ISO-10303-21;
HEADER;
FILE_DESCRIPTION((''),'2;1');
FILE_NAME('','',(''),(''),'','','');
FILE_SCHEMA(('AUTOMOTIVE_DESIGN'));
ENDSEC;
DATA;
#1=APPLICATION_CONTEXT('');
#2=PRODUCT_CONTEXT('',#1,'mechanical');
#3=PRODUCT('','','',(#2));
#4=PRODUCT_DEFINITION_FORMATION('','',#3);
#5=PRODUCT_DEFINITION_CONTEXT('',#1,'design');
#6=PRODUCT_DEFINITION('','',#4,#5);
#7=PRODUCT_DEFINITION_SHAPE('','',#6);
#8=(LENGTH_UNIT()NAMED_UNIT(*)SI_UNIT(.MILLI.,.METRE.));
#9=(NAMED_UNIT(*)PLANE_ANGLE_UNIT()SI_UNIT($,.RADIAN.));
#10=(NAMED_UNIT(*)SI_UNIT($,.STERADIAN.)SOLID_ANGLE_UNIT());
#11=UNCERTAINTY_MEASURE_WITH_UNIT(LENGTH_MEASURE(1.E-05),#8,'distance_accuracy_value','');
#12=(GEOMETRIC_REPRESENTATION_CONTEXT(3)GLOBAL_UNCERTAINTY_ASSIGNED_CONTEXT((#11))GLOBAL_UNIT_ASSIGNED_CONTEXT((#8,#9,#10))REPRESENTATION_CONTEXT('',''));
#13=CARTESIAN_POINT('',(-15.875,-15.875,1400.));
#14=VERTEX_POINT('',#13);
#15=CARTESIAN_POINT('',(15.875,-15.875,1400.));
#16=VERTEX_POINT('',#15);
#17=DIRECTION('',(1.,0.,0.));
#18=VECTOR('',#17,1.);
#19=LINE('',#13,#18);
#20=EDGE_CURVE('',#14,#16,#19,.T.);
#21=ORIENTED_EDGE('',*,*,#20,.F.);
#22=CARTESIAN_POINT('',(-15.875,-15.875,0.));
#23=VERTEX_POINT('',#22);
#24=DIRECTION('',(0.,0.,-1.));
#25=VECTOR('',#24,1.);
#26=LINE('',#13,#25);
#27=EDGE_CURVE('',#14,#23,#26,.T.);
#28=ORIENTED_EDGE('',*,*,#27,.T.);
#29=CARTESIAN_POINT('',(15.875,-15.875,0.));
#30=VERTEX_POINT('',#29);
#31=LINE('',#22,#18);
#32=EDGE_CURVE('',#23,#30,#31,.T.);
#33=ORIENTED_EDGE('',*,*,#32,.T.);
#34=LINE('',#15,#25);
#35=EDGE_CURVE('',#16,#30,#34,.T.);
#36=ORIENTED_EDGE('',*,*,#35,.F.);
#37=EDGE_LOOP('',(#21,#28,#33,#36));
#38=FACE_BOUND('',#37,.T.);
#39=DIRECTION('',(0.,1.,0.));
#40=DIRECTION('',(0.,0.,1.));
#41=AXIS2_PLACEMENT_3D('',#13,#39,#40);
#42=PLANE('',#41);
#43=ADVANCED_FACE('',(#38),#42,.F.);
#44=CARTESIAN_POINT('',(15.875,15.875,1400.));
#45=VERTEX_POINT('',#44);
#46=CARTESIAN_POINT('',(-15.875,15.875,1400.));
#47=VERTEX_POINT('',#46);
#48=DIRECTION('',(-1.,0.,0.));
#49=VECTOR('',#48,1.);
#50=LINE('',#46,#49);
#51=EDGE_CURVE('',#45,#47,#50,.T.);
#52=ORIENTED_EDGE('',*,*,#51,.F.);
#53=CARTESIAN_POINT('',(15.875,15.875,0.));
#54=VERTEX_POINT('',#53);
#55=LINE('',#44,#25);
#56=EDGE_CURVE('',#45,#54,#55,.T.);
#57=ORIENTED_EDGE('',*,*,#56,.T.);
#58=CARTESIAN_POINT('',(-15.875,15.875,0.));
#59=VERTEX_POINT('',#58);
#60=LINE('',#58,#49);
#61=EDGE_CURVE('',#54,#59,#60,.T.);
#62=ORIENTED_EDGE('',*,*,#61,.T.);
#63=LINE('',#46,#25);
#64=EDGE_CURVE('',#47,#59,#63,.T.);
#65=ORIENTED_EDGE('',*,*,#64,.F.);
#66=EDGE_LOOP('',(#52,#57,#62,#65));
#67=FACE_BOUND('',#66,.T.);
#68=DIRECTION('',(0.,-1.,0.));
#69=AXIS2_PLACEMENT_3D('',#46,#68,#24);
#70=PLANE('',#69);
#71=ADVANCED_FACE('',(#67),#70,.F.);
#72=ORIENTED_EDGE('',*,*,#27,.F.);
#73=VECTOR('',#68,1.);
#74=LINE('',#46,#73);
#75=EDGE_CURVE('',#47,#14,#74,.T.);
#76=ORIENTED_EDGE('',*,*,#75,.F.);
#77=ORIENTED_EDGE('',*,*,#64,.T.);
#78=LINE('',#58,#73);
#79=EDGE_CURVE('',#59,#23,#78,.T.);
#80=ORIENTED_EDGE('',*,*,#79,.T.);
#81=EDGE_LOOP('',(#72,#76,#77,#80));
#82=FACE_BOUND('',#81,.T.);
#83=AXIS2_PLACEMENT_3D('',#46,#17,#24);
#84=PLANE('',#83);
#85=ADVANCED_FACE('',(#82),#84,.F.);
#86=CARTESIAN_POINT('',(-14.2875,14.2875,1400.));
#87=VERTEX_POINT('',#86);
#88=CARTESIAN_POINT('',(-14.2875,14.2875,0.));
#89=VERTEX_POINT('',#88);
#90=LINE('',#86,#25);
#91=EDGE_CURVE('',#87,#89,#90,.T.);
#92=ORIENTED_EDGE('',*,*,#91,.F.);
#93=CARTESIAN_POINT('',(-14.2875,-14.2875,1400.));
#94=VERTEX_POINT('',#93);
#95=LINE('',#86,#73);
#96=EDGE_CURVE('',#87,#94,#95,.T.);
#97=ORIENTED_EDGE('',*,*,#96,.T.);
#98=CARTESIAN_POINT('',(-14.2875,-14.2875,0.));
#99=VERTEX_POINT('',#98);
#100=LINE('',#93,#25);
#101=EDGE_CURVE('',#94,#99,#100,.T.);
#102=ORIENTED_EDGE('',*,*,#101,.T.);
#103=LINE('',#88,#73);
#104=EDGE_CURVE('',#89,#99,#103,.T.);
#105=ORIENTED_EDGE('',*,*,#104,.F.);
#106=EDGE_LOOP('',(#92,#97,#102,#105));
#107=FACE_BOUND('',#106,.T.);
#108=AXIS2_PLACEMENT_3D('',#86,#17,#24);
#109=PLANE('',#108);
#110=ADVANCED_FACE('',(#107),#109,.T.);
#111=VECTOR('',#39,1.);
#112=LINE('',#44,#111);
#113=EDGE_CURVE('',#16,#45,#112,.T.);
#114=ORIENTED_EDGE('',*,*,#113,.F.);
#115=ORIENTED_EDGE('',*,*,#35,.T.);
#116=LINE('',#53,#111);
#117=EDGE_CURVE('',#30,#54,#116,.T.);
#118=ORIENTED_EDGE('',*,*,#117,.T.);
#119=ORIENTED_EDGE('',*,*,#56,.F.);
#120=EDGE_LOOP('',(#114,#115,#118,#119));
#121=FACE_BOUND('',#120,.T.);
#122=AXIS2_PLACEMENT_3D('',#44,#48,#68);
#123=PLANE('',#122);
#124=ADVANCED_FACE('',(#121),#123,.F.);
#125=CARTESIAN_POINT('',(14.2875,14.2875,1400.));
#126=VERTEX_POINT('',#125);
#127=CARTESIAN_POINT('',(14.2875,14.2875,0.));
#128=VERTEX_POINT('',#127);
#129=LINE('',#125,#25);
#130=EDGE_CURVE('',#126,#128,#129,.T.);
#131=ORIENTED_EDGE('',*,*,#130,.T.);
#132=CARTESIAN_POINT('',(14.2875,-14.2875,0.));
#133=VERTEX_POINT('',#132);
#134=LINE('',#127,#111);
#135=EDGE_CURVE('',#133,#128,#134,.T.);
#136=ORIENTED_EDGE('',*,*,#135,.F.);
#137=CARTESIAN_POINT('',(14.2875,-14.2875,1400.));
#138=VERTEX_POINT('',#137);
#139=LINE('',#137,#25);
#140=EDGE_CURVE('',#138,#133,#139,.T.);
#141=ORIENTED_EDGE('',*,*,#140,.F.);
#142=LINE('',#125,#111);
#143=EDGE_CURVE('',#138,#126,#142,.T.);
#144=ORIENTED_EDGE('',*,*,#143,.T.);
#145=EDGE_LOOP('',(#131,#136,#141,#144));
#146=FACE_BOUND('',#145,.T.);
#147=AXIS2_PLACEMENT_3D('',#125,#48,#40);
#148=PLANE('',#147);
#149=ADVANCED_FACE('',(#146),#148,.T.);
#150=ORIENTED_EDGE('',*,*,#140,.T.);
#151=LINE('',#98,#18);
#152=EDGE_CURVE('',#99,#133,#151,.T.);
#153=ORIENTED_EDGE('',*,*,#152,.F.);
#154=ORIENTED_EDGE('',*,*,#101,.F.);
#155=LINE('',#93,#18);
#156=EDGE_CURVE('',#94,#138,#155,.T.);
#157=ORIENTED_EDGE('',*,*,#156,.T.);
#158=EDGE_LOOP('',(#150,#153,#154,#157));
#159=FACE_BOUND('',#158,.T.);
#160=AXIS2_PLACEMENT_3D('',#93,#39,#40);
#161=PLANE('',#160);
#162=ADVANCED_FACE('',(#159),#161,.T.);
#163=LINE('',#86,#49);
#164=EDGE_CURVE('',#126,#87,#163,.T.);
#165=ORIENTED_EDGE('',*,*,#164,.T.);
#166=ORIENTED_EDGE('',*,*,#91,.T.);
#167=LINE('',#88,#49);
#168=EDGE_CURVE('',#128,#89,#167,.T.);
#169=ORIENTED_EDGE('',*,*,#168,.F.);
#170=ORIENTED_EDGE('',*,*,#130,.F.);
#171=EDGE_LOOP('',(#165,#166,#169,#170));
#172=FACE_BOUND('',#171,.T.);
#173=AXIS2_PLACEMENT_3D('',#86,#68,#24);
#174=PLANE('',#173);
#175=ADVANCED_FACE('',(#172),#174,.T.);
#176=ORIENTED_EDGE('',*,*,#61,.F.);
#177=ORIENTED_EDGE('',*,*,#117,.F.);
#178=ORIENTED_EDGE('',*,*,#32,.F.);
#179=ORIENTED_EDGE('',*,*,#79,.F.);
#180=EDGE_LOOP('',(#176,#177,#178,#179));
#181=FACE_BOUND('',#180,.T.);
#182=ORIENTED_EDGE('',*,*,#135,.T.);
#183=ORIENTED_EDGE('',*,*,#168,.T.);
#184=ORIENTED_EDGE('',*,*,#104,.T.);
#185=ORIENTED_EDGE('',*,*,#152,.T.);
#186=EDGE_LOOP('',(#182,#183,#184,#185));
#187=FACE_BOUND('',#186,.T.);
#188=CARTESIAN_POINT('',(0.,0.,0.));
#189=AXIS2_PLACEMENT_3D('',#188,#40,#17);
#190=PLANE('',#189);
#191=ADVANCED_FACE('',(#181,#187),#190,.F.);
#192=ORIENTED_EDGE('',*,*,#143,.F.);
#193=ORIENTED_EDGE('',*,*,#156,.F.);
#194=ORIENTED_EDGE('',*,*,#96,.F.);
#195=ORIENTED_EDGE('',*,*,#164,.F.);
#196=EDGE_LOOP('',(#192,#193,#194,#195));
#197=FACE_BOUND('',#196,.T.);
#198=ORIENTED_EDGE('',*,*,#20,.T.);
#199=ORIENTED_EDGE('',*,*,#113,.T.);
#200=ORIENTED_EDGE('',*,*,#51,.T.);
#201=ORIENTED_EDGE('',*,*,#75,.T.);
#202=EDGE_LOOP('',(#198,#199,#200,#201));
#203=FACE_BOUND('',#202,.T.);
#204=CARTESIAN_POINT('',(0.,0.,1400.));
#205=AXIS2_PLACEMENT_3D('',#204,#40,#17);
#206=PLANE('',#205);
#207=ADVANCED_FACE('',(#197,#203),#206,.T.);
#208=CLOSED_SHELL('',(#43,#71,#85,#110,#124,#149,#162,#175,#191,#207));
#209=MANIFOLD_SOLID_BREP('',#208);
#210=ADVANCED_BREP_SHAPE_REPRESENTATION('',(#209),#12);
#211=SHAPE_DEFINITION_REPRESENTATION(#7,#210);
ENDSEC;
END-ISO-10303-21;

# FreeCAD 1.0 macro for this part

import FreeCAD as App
import Part
import Sketcher

V = App.Vector
Q = App.Units.Quantity

doc = App.newDocument("Part")
body = doc.addObject("PartDesign::Body", "Body")

sketch1 = body.newObject("Sketcher::SketchObject", "Sketch")
sketch1.AttachmentSupport = (doc.getObject("XY_Plane"), [""])
sketch1.MapMode = "FlatFace"
sketch1.addGeometry(Part.LineSegment(V(-16, 16, 0), V(-16, -16, 0)), False)
sketch1.addGeometry(Part.LineSegment(V(-16, -16, 0), V(16, -16, 0)), False)
sketch1.addGeometry(Part.LineSegment(V(16, -16, 0), V(16, 16, 0)), False)
sketch1.addGeometry(Part.LineSegment(V(16, 16, 0), V(-16, 16, 0)), False)
sketch1.addGeometry(Part.LineSegment(V(14, -14, 0), V(-14, -14, 0)), False)
sketch1.addGeometry(Part.LineSegment(V(-14, -14, 0), V(-14, 14, 0)), False)
sketch1.addGeometry(Part.LineSegment(V(-14, 14, 0), V(14, 14, 0)), False)
sketch1.addGeometry(Part.LineSegment(V(14, 14, 0), V(14, -14, 0)), False)
sketch1.addConstraint(Sketcher.Constraint("Coincident", 0, 2, 1, 1))
sketch1.addConstraint(Sketcher.Constraint("Coincident", 1, 2, 2, 1))
sketch1.addConstraint(Sketcher.Constraint("Coincident", 2, 2, 3, 1))
sketch1.addConstraint(Sketcher.Constraint("Coincident", 3, 2, 0, 1))
sketch1.addConstraint(Sketcher.Constraint("Coincident", 4, 2, 5, 1))
sketch1.addConstraint(Sketcher.Constraint("Coincident", 5, 2, 6, 1))
sketch1.addConstraint(Sketcher.Constraint("Coincident", 6, 2, 7, 1))
sketch1.addConstraint(Sketcher.Constraint("Coincident", 7, 2, 4, 1))
sketch1.addConstraint(Sketcher.Constraint("Vertical", 0))
sketch1.addConstraint(Sketcher.Constraint("Horizontal", 1))
sketch1.addConstraint(Sketcher.Constraint("Vertical", 2))
sketch1.addConstraint(Sketcher.Constraint("Horizontal", 3))
sketch1.addConstraint(Sketcher.Constraint("Horizontal", 4))
sketch1.addConstraint(Sketcher.Constraint("Vertical", 5))
sketch1.addConstraint(Sketcher.Constraint("Horizontal", 6))
sketch1.addConstraint(Sketcher.Constraint("Vertical", 7))
sketch1.addConstraint(Sketcher.Constraint("Symmetric", 0, 2, 2, 2, -1, 1))
sketch1.addConstraint(Sketcher.Constraint("Symmetric", 4, 2, 6, 2, -1, 1))
sketch1.addConstraint(Sketcher.Constraint("Equal", 3, 0))
sketch1.addConstraint(Sketcher.Constraint("Equal", 6, 5))
sketch1.addConstraint(Sketcher.Constraint("DistanceX", 1, 1, 1, 2, Q("1.25 in")))
sketch1.addConstraint(Sketcher.Constraint("DistanceX", 4, 2, 4, 1, Q("1.125 in")))
pad1 = body.newObject("PartDesign::Pad", "Pad")
pad1.Profile = sketch1
pad1.Length = 1400

doc.recompute()
